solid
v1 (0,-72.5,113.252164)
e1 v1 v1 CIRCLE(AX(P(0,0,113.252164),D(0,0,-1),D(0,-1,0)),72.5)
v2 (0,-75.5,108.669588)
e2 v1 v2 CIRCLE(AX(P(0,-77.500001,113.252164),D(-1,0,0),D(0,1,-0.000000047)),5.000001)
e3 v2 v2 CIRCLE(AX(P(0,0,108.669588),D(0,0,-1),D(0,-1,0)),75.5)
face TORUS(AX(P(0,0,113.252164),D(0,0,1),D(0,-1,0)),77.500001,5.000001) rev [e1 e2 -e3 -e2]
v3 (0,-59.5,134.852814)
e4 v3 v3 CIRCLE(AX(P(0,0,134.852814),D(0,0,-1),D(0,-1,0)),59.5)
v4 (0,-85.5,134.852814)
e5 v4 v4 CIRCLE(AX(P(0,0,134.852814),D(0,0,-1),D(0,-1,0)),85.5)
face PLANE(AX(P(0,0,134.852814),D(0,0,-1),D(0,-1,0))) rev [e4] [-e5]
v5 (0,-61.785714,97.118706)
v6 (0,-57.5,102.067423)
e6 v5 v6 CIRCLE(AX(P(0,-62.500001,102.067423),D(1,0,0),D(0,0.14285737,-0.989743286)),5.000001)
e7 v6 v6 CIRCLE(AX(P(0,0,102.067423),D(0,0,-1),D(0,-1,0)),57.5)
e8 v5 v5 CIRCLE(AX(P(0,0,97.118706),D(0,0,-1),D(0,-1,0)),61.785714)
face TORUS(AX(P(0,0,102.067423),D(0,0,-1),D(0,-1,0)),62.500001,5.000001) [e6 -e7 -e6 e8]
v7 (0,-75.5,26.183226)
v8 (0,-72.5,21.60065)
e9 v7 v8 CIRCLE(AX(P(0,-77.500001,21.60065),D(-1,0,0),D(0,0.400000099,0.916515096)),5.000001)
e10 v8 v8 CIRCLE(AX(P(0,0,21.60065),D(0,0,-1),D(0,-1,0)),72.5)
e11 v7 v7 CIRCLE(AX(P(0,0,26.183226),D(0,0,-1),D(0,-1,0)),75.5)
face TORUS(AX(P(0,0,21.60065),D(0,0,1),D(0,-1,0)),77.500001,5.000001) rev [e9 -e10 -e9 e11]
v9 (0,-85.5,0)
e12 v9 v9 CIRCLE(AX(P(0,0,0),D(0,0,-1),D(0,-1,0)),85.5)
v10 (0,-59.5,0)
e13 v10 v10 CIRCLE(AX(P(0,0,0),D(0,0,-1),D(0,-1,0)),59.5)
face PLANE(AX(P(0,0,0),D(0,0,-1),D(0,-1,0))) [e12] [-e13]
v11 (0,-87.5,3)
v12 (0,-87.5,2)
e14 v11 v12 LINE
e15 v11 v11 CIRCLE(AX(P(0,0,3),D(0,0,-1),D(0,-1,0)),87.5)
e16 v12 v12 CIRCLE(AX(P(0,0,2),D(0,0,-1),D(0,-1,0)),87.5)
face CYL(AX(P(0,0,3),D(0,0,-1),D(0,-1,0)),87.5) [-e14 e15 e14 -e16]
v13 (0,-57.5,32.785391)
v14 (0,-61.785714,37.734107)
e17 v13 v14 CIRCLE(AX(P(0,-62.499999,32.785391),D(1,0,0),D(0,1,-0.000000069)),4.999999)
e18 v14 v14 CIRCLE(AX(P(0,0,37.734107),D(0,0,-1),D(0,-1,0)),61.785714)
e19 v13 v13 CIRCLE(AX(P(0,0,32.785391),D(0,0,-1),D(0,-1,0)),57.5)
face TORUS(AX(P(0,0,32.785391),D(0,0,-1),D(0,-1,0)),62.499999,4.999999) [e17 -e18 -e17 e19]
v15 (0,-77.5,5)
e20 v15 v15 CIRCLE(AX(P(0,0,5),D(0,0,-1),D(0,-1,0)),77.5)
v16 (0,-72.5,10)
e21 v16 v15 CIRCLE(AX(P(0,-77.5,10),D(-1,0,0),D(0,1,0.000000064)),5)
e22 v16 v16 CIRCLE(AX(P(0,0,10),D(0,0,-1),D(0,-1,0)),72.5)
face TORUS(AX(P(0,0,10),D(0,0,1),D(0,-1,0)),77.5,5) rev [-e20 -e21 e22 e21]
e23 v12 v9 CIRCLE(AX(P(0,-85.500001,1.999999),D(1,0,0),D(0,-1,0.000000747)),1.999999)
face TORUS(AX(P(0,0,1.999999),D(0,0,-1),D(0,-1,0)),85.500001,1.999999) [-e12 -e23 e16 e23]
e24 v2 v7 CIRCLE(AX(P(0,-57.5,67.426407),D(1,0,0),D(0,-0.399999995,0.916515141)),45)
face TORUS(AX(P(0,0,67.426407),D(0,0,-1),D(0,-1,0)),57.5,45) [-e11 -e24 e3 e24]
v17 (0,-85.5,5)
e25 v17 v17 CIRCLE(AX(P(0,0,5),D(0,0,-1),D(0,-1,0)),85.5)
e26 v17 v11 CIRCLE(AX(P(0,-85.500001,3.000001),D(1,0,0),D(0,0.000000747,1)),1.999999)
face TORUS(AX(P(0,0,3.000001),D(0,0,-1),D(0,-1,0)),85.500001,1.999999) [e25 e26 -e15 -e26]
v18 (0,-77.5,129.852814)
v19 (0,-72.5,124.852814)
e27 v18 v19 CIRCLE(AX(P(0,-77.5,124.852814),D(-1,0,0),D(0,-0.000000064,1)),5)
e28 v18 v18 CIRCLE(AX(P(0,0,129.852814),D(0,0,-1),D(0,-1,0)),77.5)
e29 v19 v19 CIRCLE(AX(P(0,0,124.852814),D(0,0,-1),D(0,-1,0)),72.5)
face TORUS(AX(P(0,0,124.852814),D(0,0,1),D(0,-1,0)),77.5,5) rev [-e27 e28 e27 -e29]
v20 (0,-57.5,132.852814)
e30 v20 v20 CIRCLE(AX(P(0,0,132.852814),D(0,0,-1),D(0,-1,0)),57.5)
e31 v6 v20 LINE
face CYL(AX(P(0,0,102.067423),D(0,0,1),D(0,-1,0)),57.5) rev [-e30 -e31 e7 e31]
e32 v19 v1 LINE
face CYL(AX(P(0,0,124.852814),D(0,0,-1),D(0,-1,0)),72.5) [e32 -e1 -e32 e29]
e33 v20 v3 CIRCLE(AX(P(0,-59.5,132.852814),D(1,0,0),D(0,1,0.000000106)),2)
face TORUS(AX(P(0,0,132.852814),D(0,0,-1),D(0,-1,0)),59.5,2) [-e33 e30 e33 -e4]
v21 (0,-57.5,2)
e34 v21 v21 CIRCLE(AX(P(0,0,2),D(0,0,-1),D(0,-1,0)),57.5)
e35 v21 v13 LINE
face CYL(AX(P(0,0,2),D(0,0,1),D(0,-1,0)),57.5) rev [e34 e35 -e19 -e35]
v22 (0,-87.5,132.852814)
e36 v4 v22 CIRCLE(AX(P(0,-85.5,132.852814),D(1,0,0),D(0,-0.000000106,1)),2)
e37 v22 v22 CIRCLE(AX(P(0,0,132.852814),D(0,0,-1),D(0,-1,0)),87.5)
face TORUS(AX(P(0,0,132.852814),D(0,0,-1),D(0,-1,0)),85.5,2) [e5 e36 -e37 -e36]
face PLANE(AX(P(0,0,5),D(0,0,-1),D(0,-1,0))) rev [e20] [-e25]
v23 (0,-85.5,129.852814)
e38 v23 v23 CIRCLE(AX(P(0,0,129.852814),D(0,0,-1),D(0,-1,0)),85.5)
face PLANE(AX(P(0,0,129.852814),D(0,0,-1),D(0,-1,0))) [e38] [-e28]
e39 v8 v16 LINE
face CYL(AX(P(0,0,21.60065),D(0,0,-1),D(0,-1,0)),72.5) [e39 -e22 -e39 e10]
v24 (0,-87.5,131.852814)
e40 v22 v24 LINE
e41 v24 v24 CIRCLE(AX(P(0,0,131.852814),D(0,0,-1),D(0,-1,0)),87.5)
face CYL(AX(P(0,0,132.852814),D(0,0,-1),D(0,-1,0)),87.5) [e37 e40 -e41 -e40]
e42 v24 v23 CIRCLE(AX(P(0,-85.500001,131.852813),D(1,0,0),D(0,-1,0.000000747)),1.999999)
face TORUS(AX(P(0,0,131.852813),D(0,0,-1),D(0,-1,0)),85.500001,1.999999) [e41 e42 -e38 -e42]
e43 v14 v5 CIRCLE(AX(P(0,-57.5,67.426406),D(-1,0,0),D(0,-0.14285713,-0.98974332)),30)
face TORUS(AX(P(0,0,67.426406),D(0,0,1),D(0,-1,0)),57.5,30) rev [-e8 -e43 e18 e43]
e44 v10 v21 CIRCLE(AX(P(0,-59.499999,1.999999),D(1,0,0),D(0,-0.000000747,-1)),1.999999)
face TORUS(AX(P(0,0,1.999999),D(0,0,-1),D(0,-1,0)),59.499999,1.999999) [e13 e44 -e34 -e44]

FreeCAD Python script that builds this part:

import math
import FreeCAD as App
import Part
import Sketcher
from FreeCAD import Vector

doc = App.newDocument("Part")
body = doc.addObject("PartDesign::Body", "Body")

sketch1 = doc.addObject("Sketcher::SketchObject", "Sketch")
body.addObject(sketch1)
sketch1.AttachmentSupport = (doc.YZ_Plane, [""])
sketch1.MapMode = "FlatFace"
sketch1.addGeometry(Part.LineSegment(Vector(-85.5, 0, 0), Vector(-59.5, 0, 0)), False)
sketch1.addGeometry(Part.ArcOfCircle(Part.Circle(Vector(-59.499999, 1.999999, 0), Vector(0, 0, 1), 1.999999), math.radians(-90.000043), math.radians(0.000043)), False)
sketch1.addGeometry(Part.LineSegment(Vector(-57.5, 2, 0), Vector(-57.5, 32.785391, 0)), False)
sketch1.addGeometry(Part.ArcOfCircle(Part.Circle(Vector(-62.499999, 32.785391, 0), Vector(0, 0, 1), 4.999999), math.radians(-0.000004), math.radians(81.786796)), False)
sketch1.addGeometry(Part.ArcOfCircle(Part.Circle(Vector(-57.5, 67.426406, 0), Vector(0, 0, 1), 30), math.radians(98.21321), math.radians(261.78679)), False)
sketch1.addGeometry(Part.ArcOfCircle(Part.Circle(Vector(-62.500001, 102.067423, 0), Vector(0, 0, 1), 5.000001), math.radians(-81.786776), math.radians(-0.000005)), False)
sketch1.addGeometry(Part.LineSegment(Vector(-57.5, 102.067423, 0), Vector(-57.5, 132.852814, 0)), False)
sketch1.addGeometry(Part.ArcOfCircle(Part.Circle(Vector(-59.5, 132.852814, 0), Vector(0, 0, 1), 2), math.radians(0.000006), math.radians(89.999994)), False)
sketch1.addGeometry(Part.LineSegment(Vector(-59.5, 134.852814, 0), Vector(-85.5, 134.852814, 0)), False)
sketch1.addGeometry(Part.ArcOfCircle(Part.Circle(Vector(-85.5, 132.852814, 0), Vector(0, 0, 1), 2), math.radians(90.000006), math.radians(179.999994)), False)
sketch1.addGeometry(Part.LineSegment(Vector(-87.5, 132.852814, 0), Vector(-87.5, 131.852814, 0)), False)
sketch1.addGeometry(Part.ArcOfCircle(Part.Circle(Vector(-85.500001, 131.852813, 0), Vector(0, 0, 1), 1.999999), math.radians(179.999957), math.radians(270.000043)), False)
sketch1.addGeometry(Part.LineSegment(Vector(-85.5, 129.852814, 0), Vector(-77.5, 129.852814, 0)), False)
sketch1.addGeometry(Part.ArcOfCircle(Part.Circle(Vector(-77.5, 124.852814, 0), Vector(0, 0, 1), 5), math.radians(-0.000004), math.radians(90.000004)), False)
sketch1.addGeometry(Part.LineSegment(Vector(-72.5, 124.852814, 0), Vector(-72.5, 113.252164, 0)), False)
sketch1.addGeometry(Part.ArcOfCircle(Part.Circle(Vector(-77.500001, 113.252164, 0), Vector(0, 0, 1), 5.000001), math.radians(-66.421815), math.radians(-0.000003)), False)
sketch1.addGeometry(Part.ArcOfCircle(Part.Circle(Vector(-57.5, 67.426407, 0), Vector(0, 0, 1), 45), math.radians(113.578178), math.radians(246.421822)), False)
sketch1.addGeometry(Part.ArcOfCircle(Part.Circle(Vector(-77.500001, 21.60065, 0), Vector(0, 0, 1), 5.000001), math.radians(0.000003), math.radians(66.421815)), False)
sketch1.addGeometry(Part.LineSegment(Vector(-72.5, 21.60065, 0), Vector(-72.5, 10, 0)), False)
sketch1.addGeometry(Part.ArcOfCircle(Part.Circle(Vector(-77.5, 10, 0), Vector(0, 0, 1), 5), math.radians(-90.000004), math.radians(0.000004)), False)
sketch1.addGeometry(Part.LineSegment(Vector(-77.5, 5, 0), Vector(-85.5, 5, 0)), False)
sketch1.addGeometry(Part.ArcOfCircle(Part.Circle(Vector(-85.500001, 3.000001, 0), Vector(0, 0, 1), 1.999999), math.radians(89.999957), math.radians(180.000043)), False)
sketch1.addGeometry(Part.LineSegment(Vector(-87.5, 3, 0), Vector(-87.5, 2, 0)), False)
sketch1.addGeometry(Part.ArcOfCircle(Part.Circle(Vector(-85.500001, 1.999999, 0), Vector(0, 0, 1), 1.999999), math.radians(179.999957), math.radians(270.000043)), False)
sketch1.addConstraint(Sketcher.Constraint("Tangent", 0, 2, 1, 1))
sketch1.addConstraint(Sketcher.Constraint("Tangent", 1, 2, 2, 1))
sketch1.addConstraint(Sketcher.Constraint("Tangent", 2, 2, 3, 1))
sketch1.addConstraint(Sketcher.Constraint("Tangent", 3, 2, 4, 2))
sketch1.addConstraint(Sketcher.Constraint("Tangent", 4, 1, 5, 1))
sketch1.addConstraint(Sketcher.Constraint("Tangent", 5, 2, 6, 1))
sketch1.addConstraint(Sketcher.Constraint("Tangent", 6, 2, 7, 1))
sketch1.addConstraint(Sketcher.Constraint("Tangent", 7, 2, 8, 1))
sketch1.addConstraint(Sketcher.Constraint("Tangent", 8, 2, 9, 1))
sketch1.addConstraint(Sketcher.Constraint("Tangent", 9, 2, 10, 1))
sketch1.addConstraint(Sketcher.Constraint("Tangent", 10, 2, 11, 1))
sketch1.addConstraint(Sketcher.Constraint("Tangent", 11, 2, 12, 1))
sketch1.addConstraint(Sketcher.Constraint("Tangent", 12, 2, 13, 2))
sketch1.addConstraint(Sketcher.Constraint("Tangent", 13, 1, 14, 1))
sketch1.addConstraint(Sketcher.Constraint("Tangent", 14, 2, 15, 2))
sketch1.addConstraint(Sketcher.Constraint("Tangent", 15, 1, 16, 1))
sketch1.addConstraint(Sketcher.Constraint("Tangent", 16, 2, 17, 2))
sketch1.addConstraint(Sketcher.Constraint("Tangent", 17, 1, 18, 1))
sketch1.addConstraint(Sketcher.Constraint("Tangent", 18, 2, 19, 2))
sketch1.addConstraint(Sketcher.Constraint("Tangent", 19, 1, 20, 1))
sketch1.addConstraint(Sketcher.Constraint("Tangent", 20, 2, 21, 1))
sketch1.addConstraint(Sketcher.Constraint("Tangent", 21, 2, 22, 1))
sketch1.addConstraint(Sketcher.Constraint("Tangent", 22, 2, 23, 1))
sketch1.addConstraint(Sketcher.Constraint("Tangent", 23, 2, 0, 1))
sketch1.addConstraint(Sketcher.Constraint("Horizontal", 0))
sketch1.addConstraint(Sketcher.Constraint("Vertical", 2))
sketch1.addConstraint(Sketcher.Constraint("Vertical", 6))
sketch1.addConstraint(Sketcher.Constraint("Horizontal", 8))
sketch1.addConstraint(Sketcher.Constraint("Vertical", 10))
sketch1.addConstraint(Sketcher.Constraint("Horizontal", 12))
sketch1.addConstraint(Sketcher.Constraint("Vertical", 14))
sketch1.addConstraint(Sketcher.Constraint("Vertical", 18))
sketch1.addConstraint(Sketcher.Constraint("Horizontal", 20))
sketch1.addConstraint(Sketcher.Constraint("Vertical", 22))
sketch1.addConstraint(Sketcher.Constraint("Coincident", 16, 3, 4, 3))
sketch1.addConstraint(Sketcher.Constraint("Equal", 1, 7))
sketch1.addConstraint(Sketcher.Constraint("Equal", 7, 9))
sketch1.addConstraint(Sketcher.Constraint("Equal", 9, 11))
sketch1.addConstraint(Sketcher.Constraint("Equal", 5, 13))
sketch1.addConstraint(Sketcher.Constraint("Equal", 13, 15))
sketch1.addConstraint(Sketcher.Constraint("Equal", 15, 17))
sketch1.addConstraint(Sketcher.Constraint("Equal", 17, 19))
sketch1.addConstraint(Sketcher.Constraint("Equal", 11, 21))
sketch1.addConstraint(Sketcher.Constraint("Equal", 21, 23))
sketch1.addConstraint(Sketcher.Constraint("PointOnObject", 0, 2, -1))
sketch1.addConstraint(Sketcher.Constraint("Vertical", 1, 3, 7, 3))
sketch1.addConstraint(Sketcher.Constraint("Vertical", 15, 3, 17, 3))
sketch1.addConstraint(Sketcher.Constraint("Vertical", 11, 3, 21, 3))
sketch1.addConstraint(Sketcher.Constraint("Vertical", 16, 3, 1, 2))
sketch1.addConstraint(Sketcher.Constraint("Vertical", 3, 2, 4, 1))
sketch1.addConstraint(Sketcher.Constraint("Equal", 2, 6))
sketch1.addConstraint(Sketcher.Constraint("Equal", 14, 18))
sketch1.addConstraint(Sketcher.Constraint("Radius", 1, 1.999999))
sketch1.addConstraint(Sketcher.Constraint("Radius", 3, 4.999999))
sketch1.addConstraint(Sketcher.Constraint("Radius", 4, 30.0))
sketch1.addConstraint(Sketcher.Constraint("Radius", 16, 45.0))
sketch1.addConstraint(Sketcher.Constraint("DistanceX", 0, 1, 0, 2, 26.0))
sketch1.addConstraint(Sketcher.Constraint("DistanceX", 12, 1, 12, 2, 8.0))
sketch1.addConstraint(Sketcher.Constraint("DistanceY", 10, 2, 10, 1, 1.0))
sketch1.addConstraint(Sketcher.Constraint("DistanceX", 1, 3, -1, 1, 59.499999))
sketch1.addConstraint(Sketcher.Constraint("DistanceY", 2, 1, 2, 2, 30.785391))
revolution = doc.addObject("PartDesign::Revolution", "Revolution")
body.addObject(revolution)
revolution.Profile = sketch1
revolution.ReferenceAxis = (sketch1, ["V_Axis"])
revolution.Angle = 360

doc.recompute()
